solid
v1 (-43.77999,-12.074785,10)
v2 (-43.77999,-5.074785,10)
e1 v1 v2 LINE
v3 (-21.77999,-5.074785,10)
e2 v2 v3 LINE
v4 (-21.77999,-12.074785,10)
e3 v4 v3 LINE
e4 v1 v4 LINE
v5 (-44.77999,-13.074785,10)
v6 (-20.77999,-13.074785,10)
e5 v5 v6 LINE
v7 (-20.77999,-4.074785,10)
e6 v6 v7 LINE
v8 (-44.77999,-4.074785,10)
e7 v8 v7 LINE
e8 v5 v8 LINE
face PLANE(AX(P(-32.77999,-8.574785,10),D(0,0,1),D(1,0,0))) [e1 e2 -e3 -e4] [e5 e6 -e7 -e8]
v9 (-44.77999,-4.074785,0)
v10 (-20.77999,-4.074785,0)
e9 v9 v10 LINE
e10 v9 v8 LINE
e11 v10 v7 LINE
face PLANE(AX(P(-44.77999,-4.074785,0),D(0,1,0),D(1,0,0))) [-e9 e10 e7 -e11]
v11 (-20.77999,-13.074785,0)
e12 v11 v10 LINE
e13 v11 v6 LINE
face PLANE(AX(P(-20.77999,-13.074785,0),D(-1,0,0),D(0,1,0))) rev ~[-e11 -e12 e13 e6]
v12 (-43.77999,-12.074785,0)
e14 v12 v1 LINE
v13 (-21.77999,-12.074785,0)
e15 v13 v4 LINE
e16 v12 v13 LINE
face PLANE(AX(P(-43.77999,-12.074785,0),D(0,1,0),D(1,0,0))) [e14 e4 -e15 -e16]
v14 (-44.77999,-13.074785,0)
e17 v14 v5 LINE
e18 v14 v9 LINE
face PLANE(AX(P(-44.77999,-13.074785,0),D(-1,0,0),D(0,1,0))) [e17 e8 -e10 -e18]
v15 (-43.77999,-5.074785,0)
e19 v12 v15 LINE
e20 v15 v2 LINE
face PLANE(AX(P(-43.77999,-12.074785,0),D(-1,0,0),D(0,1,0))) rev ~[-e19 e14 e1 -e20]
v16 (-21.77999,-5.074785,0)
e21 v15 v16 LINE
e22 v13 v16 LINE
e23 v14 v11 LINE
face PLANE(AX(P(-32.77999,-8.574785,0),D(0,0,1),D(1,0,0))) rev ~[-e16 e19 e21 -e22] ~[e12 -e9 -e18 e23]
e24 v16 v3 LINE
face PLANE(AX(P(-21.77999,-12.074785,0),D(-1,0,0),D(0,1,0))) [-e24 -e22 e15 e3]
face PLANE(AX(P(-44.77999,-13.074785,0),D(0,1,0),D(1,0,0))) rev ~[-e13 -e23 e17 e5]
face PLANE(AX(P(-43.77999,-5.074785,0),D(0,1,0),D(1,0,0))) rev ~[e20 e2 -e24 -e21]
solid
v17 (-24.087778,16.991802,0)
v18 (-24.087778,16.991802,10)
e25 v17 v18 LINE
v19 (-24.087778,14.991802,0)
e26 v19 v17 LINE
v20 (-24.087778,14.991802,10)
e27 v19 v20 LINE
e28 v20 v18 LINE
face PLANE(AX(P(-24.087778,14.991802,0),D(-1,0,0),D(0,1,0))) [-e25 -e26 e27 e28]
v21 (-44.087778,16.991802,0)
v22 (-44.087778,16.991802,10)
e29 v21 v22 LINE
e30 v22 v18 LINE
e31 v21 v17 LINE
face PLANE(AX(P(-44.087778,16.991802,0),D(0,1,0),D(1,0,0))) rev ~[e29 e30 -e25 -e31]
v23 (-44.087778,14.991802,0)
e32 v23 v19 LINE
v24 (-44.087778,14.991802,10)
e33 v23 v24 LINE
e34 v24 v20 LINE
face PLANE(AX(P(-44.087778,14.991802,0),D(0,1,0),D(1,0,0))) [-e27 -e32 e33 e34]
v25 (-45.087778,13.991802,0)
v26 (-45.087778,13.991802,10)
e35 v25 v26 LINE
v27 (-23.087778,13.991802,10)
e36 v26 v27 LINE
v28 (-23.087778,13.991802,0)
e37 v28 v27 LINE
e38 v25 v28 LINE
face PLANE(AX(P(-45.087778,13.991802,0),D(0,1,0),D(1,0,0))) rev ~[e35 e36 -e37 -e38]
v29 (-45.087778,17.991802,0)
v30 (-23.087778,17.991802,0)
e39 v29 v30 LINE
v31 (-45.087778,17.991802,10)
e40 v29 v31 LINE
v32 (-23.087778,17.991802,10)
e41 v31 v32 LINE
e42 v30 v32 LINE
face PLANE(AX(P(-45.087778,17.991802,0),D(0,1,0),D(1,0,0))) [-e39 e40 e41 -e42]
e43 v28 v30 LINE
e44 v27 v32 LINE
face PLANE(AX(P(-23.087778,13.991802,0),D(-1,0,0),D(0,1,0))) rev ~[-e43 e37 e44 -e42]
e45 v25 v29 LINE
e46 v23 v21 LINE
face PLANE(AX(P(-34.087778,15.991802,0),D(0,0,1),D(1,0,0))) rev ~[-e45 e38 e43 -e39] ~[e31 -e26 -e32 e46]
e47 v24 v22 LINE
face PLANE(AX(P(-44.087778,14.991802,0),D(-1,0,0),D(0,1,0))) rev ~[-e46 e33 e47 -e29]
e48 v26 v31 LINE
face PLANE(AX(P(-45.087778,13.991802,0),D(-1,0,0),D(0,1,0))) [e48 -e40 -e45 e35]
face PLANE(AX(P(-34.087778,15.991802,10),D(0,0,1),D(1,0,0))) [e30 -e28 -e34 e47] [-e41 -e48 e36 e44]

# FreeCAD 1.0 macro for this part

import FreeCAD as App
import Part
import Sketcher

V = App.Vector
Q = App.Units.Quantity

doc = App.newDocument("Part")
body = doc.addObject("PartDesign::Body", "Body")
body.AllowCompound = True

# Sketch on XY plane
sketch1 = doc.addObject("Sketcher::SketchObject", "Sketch")
body.addObject(sketch1)
sketch1.AttachmentSupport = (doc.XY_Plane, [""])
sketch1.MapMode = "FlatFace"
sketch1.addGeometry([
    Part.LineSegment(V(-45.1, 18, 0), V(-45.1, 14, 0)),  # 0
    Part.LineSegment(V(-45.1, 14, 0), V(-23.1, 14, 0)),  # 1
    Part.LineSegment(V(-23.1, 14, 0), V(-23.1, 18, 0)),  # 2
    Part.LineSegment(V(-23.1, 18, 0), V(-45.1, 18, 0)),  # 3
    Part.LineSegment(V(-24.1, 15, 0), V(-44.1, 15, 0)),  # 4
    Part.LineSegment(V(-44.1, 15, 0), V(-44.1, 17, 0)),  # 5
    Part.LineSegment(V(-44.1, 17, 0), V(-24.1, 17, 0)),  # 6
    Part.LineSegment(V(-24.1, 17, 0), V(-24.1, 15, 0)),  # 7
    Part.LineSegment(V(-44.8, -4.1, 0), V(-44.8, -13.1, 0)),  # 8
    Part.LineSegment(V(-44.8, -13.1, 0), V(-20.8, -13.1, 0)),  # 9
    Part.LineSegment(V(-20.8, -13.1, 0), V(-20.8, -4.1, 0)),  # 10
    Part.LineSegment(V(-20.8, -4.1, 0), V(-44.8, -4.1, 0)),  # 11
    Part.LineSegment(V(-21.8, -12.1, 0), V(-43.8, -12.1, 0)),  # 12
    Part.LineSegment(V(-43.8, -12.1, 0), V(-43.8, -5.1, 0)),  # 13
    Part.LineSegment(V(-43.8, -5.1, 0), V(-21.8, -5.1, 0)),  # 14
    Part.LineSegment(V(-21.8, -5.1, 0), V(-21.8, -12.1, 0)),  # 15
], False)
sketch1.addConstraint([
    Sketcher.Constraint("Coincident", 0, 2, 1, 1),
    Sketcher.Constraint("Coincident", 1, 2, 2, 1),
    Sketcher.Constraint("Coincident", 2, 2, 3, 1),
    Sketcher.Constraint("Coincident", 3, 2, 0, 1),
    Sketcher.Constraint("Coincident", 4, 2, 5, 1),
    Sketcher.Constraint("Coincident", 5, 2, 6, 1),
    Sketcher.Constraint("Coincident", 6, 2, 7, 1),
    Sketcher.Constraint("Coincident", 7, 2, 4, 1),
    Sketcher.Constraint("Coincident", 8, 2, 9, 1),
    Sketcher.Constraint("Coincident", 9, 2, 10, 1),
    Sketcher.Constraint("Coincident", 10, 2, 11, 1),
    Sketcher.Constraint("Coincident", 11, 2, 8, 1),
    Sketcher.Constraint("Coincident", 12, 2, 13, 1),
    Sketcher.Constraint("Coincident", 13, 2, 14, 1),
    Sketcher.Constraint("Coincident", 14, 2, 15, 1),
    Sketcher.Constraint("Coincident", 15, 2, 12, 1),
    Sketcher.Constraint("Vertical", 0),
    Sketcher.Constraint("Horizontal", 1),
    Sketcher.Constraint("Vertical", 2),
    Sketcher.Constraint("Horizontal", 3),
    Sketcher.Constraint("Horizontal", 4),
    Sketcher.Constraint("Vertical", 5),
    Sketcher.Constraint("Horizontal", 6),
    Sketcher.Constraint("Vertical", 7),
    Sketcher.Constraint("Vertical", 8),
    Sketcher.Constraint("Horizontal", 9),
    Sketcher.Constraint("Vertical", 10),
    Sketcher.Constraint("Horizontal", 11),
    Sketcher.Constraint("Horizontal", 12),
    Sketcher.Constraint("Vertical", 13),
    Sketcher.Constraint("Horizontal", 14),
    Sketcher.Constraint("Vertical", 15),
    Sketcher.Constraint("Equal", 3, 12),
    Sketcher.Constraint("DistanceX", 1, 1, 1, 2, Q("22 mm")),
    Sketcher.Constraint("DistanceX", 4, 2, 4, 1, Q("20 mm")),
    Sketcher.Constraint("DistanceX", 9, 1, 9, 2, Q("24 mm")),
    Sketcher.Constraint("DistanceY", 0, 2, 0, 1, Q("4 mm")),
    Sketcher.Constraint("DistanceY", 5, 1, 5, 2, Q("2 mm")),
    Sketcher.Constraint("DistanceY", 8, 2, 8, 1, Q("9 mm")),
    Sketcher.Constraint("DistanceY", 13, 1, 13, 2, Q("7 mm")),
    Sketcher.Constraint("DistanceX", 0, 2, 4, 2, Q("1 mm")),
    Sketcher.Constraint("DistanceY", 0, 2, 4, 2, Q("1 mm")),
    Sketcher.Constraint("DistanceX", 8, 2, 12, 2, Q("1 mm")),
    Sketcher.Constraint("DistanceY", 8, 2, 12, 2, Q("1 mm")),
    Sketcher.Constraint("DistanceY", -1, 1, 2, 2, Q("17.991802 mm")),
    Sketcher.Constraint("DistanceX", 1, 2, -1, 1, Q("23.087778 mm")),
    Sketcher.Constraint("DistanceX", 8, 2, -1, 1, Q("44.77999 mm")),
    Sketcher.Constraint("DistanceY", 8, 2, -1, 1, Q("13.074785 mm")),
])
pad1 = doc.addObject("PartDesign::Pad", "Pad")
body.addObject(pad1)
pad1.Profile = sketch1
pad1.Length = 10

doc.recompute()
